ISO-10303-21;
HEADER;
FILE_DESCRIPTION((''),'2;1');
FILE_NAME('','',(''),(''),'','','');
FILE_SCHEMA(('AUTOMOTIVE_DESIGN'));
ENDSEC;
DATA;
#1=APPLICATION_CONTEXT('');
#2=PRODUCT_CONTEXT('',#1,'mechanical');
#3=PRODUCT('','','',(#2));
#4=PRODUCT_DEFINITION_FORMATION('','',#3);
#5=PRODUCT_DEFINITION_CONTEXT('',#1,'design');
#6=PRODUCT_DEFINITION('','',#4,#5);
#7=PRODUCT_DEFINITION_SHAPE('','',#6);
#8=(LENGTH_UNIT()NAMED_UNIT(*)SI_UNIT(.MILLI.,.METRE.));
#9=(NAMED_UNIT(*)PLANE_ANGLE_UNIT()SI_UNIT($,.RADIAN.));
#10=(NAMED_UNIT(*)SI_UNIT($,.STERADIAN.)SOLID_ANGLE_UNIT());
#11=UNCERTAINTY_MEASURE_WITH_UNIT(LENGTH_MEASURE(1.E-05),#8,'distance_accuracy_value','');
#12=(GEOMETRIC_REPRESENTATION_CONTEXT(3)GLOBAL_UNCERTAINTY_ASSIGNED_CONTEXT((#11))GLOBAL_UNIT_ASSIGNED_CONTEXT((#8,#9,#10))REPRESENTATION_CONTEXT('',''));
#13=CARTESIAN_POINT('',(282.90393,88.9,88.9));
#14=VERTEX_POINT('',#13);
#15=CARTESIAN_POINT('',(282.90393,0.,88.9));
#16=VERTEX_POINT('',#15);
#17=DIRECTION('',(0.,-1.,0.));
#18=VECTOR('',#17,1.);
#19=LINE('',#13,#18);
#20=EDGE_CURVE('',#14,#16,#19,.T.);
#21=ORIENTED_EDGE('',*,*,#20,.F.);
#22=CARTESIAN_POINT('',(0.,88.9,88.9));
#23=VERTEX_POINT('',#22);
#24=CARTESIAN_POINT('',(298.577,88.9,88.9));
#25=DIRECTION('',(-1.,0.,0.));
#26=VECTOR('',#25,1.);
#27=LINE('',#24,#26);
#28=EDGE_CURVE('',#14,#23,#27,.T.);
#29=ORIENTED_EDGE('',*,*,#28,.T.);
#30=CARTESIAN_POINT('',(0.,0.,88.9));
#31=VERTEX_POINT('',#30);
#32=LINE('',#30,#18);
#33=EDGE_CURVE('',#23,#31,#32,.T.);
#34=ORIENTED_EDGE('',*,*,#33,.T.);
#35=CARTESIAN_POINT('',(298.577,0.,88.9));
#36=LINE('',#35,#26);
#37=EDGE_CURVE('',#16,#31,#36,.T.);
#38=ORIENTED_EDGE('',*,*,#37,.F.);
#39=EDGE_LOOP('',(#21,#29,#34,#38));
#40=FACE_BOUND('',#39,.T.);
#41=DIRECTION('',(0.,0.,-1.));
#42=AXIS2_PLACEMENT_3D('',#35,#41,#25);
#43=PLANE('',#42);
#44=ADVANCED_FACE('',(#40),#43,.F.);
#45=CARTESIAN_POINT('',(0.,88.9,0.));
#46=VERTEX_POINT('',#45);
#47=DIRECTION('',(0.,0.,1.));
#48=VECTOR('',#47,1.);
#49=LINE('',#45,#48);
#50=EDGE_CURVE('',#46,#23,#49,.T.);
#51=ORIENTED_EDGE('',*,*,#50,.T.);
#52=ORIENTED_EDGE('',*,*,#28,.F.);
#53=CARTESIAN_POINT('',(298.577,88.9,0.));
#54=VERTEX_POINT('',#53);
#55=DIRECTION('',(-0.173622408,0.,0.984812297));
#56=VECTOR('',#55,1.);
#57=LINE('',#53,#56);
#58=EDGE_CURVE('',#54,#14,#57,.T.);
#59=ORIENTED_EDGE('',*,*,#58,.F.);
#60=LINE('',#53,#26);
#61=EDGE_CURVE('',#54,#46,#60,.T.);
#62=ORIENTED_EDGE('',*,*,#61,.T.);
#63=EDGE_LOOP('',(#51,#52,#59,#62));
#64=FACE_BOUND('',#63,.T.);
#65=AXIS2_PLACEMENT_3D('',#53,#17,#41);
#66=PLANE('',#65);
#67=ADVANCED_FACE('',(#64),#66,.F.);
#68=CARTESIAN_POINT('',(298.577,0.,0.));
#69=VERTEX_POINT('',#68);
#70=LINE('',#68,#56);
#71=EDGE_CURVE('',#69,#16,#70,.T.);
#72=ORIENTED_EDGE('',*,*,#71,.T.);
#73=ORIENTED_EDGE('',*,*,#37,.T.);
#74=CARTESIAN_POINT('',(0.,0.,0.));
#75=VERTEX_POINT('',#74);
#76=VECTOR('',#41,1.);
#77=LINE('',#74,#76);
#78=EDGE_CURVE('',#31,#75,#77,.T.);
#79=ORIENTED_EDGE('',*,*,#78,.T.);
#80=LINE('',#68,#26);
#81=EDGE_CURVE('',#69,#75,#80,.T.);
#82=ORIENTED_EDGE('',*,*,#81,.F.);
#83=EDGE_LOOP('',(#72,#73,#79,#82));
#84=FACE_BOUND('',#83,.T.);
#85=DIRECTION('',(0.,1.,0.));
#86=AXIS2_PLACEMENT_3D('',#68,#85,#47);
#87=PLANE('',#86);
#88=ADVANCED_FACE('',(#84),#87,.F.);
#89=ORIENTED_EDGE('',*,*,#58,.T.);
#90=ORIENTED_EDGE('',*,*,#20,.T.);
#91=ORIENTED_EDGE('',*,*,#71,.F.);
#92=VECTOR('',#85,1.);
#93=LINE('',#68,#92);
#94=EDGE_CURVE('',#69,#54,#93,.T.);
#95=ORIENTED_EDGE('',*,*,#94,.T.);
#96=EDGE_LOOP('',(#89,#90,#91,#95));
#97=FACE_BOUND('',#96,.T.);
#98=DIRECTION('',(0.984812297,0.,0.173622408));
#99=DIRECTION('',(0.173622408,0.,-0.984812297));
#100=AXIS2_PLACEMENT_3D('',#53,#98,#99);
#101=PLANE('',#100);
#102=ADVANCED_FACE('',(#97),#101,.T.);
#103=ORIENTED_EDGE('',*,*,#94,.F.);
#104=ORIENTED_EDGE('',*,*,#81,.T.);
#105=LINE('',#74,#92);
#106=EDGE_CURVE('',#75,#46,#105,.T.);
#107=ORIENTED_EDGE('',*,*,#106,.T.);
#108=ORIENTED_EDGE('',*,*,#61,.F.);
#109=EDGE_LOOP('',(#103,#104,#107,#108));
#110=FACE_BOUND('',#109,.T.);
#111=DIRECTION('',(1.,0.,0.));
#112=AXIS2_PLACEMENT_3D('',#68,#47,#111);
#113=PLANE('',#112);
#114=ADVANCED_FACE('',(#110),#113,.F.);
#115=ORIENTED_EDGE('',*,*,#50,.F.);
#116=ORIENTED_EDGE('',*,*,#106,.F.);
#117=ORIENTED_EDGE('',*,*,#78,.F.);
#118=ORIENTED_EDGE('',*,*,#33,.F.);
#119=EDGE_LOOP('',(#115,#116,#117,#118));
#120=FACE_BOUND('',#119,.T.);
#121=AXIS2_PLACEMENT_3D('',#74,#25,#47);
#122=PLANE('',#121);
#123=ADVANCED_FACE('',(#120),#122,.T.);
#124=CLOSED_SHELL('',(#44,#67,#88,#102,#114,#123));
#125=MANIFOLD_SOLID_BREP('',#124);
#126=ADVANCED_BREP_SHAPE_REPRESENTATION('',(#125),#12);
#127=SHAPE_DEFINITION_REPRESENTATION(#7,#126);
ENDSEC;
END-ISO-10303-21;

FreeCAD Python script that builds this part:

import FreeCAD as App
import Part
import Sketcher
Q = App.Units.Quantity


def add_polygon(sketch, points):
    """Adds a closed chain of lines whose ends are joined by coincident constraints."""
    first, n = sketch.GeometryCount, len(points)
    for a, b in zip(points, points[1:] + points[:1]):
        sketch.addGeometry(Part.LineSegment(App.Vector(*a, 0), App.Vector(*b, 0)), False)
    for i in range(n):
        sketch.addConstraint(Sketcher.Constraint("Coincident", first + i, 2, first + (i + 1) % n, 1))

doc = App.newDocument("Part")
body = doc.addObject("PartDesign::Body", "Body")

# Sketch on YZ plane
sketch1 = body.newObject("Sketcher::SketchObject", "Sketch")
sketch1.AttachmentSupport = (doc.getObject("YZ_Plane"), [""])
sketch1.MapMode = "FlatFace"
add_polygon(sketch1, [(0, 89), (0, 0), (89, 0), (89, 89)])  # lines 0-3
sketch1.addConstraint([
    Sketcher.Constraint("Vertical", 0),
    Sketcher.Constraint("Horizontal", 1),
    Sketcher.Constraint("Vertical", 2),
    Sketcher.Constraint("Horizontal", 3),
    Sketcher.Constraint("Coincident", 0, 2, -1, 1),
    Sketcher.Constraint("Equal", 3, 0),
    Sketcher.Constraint("DistanceX", 1, 1, 1, 2, Q("3.5 in")),
])
pad1 = body.newObject("PartDesign::Pad", "Pad")
pad1.Profile = sketch1
pad1.Length = Q("11.755 in")

# Sketch on XZ plane
sketch2 = body.newObject("Sketcher::SketchObject", "Sketch001")
sketch2.AttachmentSupport = (doc.getObject("XZ_Plane"), [""])
sketch2.MapMode = "FlatFace"
add_polygon(sketch2, [(299, 0), (283, 89), (299, 89)])  # lines 0-2
sketch2.addConstraint([
    Sketcher.Constraint("Horizontal", 1),
    Sketcher.Constraint("Vertical", 2),
    Sketcher.Constraint("PointOnObject", 2, 2, -1),
    Sketcher.Constraint("DistanceY", 2, 2, 2, 1, Q("3.5 in")),
    Sketcher.Constraint("DistanceX", -1, 1, 1, 2, Q("11.755 in")),
    Sketcher.Constraint("DistanceX", 1, 1, 1, 2, 15.67307),
])
pocket1 = body.newObject("PartDesign::Pocket", "Pocket")
pocket1.Profile = sketch2
pocket1.Length = Q("3.5 in")

doc.recompute()
